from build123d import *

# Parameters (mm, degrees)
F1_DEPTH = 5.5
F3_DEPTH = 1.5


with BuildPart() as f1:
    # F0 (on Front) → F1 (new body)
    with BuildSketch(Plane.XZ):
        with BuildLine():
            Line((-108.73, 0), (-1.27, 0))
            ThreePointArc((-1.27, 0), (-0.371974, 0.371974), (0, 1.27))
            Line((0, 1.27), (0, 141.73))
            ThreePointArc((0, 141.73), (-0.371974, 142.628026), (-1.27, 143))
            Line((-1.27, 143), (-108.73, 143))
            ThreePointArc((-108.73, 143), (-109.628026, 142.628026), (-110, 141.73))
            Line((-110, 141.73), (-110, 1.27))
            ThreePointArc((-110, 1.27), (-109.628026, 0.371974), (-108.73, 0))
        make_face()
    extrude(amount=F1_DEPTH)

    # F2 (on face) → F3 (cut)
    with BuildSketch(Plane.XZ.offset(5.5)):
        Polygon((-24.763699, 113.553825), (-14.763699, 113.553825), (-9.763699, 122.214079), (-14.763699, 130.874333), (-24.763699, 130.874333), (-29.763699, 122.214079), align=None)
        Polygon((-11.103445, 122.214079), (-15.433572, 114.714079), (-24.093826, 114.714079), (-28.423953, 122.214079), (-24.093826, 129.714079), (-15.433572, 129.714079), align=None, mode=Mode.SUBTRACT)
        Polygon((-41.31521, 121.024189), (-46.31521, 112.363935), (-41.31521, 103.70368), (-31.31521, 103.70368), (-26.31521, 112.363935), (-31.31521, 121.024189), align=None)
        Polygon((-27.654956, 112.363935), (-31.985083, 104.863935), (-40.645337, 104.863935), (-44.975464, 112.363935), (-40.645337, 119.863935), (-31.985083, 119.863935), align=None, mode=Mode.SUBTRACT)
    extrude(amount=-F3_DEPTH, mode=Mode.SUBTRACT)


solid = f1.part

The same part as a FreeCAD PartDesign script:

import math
import FreeCAD as App
import Part
import Sketcher
from FreeCAD import Vector
Q = App.Units.Quantity


def add_polygon(sketch, points):
    """Adds a closed chain of lines whose ends are joined by coincident constraints."""
    first, n = sketch.GeometryCount, len(points)
    for a, b in zip(points, points[1:] + points[:1]):
        sketch.addGeometry(Part.LineSegment(App.Vector(*a, 0), App.Vector(*b, 0)), False)
    for i in range(n):
        sketch.addConstraint(Sketcher.Constraint("Coincident", first + i, 2, first + (i + 1) % n, 1))

doc = App.newDocument("Part")
body = doc.addObject("PartDesign::Body", "Body")

# Sketch on XZ plane
sketch1 = body.newObject("Sketcher::SketchObject", "Sketch")
sketch1.AttachmentSupport = (doc.getObject("XZ_Plane"), [""])
sketch1.MapMode = "FlatFace"
sketch1.addGeometry([
    Part.LineSegment(Vector(-108.7, 0, 0), Vector(-1.3, 0, 0)),  # 0
    Part.ArcOfCircle(Part.Circle(Vector(-1.3, 1.3, 0), Vector(0, 0, 1), 1.3), math.radians(-90), math.radians(0)),  # 1
    Part.LineSegment(Vector(0, 1.3, 0), Vector(0, 141.7, 0)),  # 2
    Part.ArcOfCircle(Part.Circle(Vector(-1.3, 141.7, 0), Vector(0, 0, 1), 1.3), math.radians(0), math.radians(90)),  # 3
    Part.LineSegment(Vector(-1.3, 143, 0), Vector(-108.7, 143, 0)),  # 4
    Part.ArcOfCircle(Part.Circle(Vector(-108.7, 141.7, 0), Vector(0, 0, 1), 1.3), math.radians(90), math.radians(180)),  # 5
    Part.LineSegment(Vector(-110, 141.7, 0), Vector(-110, 1.3, 0)),  # 6
    Part.ArcOfCircle(Part.Circle(Vector(-108.7, 1.3, 0), Vector(0, 0, 1), 1.3), math.radians(180), math.radians(270)),  # 7
], False)
sketch1.addConstraint([
    Sketcher.Constraint("Tangent", 0, 2, 1, 1),
    Sketcher.Constraint("Tangent", 1, 2, 2, 1),
    Sketcher.Constraint("Tangent", 2, 2, 3, 1),
    Sketcher.Constraint("Tangent", 3, 2, 4, 1),
    Sketcher.Constraint("Tangent", 4, 2, 5, 1),
    Sketcher.Constraint("Tangent", 5, 2, 6, 1),
    Sketcher.Constraint("Tangent", 6, 2, 7, 1),
    Sketcher.Constraint("Tangent", 7, 2, 0, 1),
    Sketcher.Constraint("Horizontal", 0),
    Sketcher.Constraint("Vertical", 2),
    Sketcher.Constraint("Horizontal", 4),
    Sketcher.Constraint("Vertical", 6),
    Sketcher.Constraint("Equal", 1, 3),
    Sketcher.Constraint("Equal", 3, 5),
    Sketcher.Constraint("Equal", 5, 7),
    Sketcher.Constraint("PointOnObject", 0, 2, -1),
    Sketcher.Constraint("PointOnObject", 1, 2, -2),
    Sketcher.Constraint("Radius", 1, Q("1.269999 mm")),
    Sketcher.Constraint("DistanceY", -1, 1, 3, 2, Q("143 mm")),
    Sketcher.Constraint("DistanceX", 5, 2, -1, 1, Q("110 mm")),
])
pad1 = body.newObject("PartDesign::Pad", "Pad")
pad1.Profile = sketch1
pad1.Length = 5.5

# Sketch on XZ plane
sketch2 = body.newObject("Sketcher::SketchObject", "Sketch001")
sketch2.AttachmentSupport = (doc.getObject("XZ_Plane"), [""])
sketch2.MapMode = "FlatFace"
sketch2.AttachmentOffset = App.Placement(Vector(0, 0, 5.5), App.Rotation())
add_polygon(sketch2, [(-25, 114), (-15, 114), (-10, 122), (-15, 131), (-25, 131), (-30, 122)])  # lines 0-5
add_polygon(sketch2, [(-15, 130), (-11, 122), (-15, 115), (-24, 115), (-28, 122), (-24, 130)])  # lines 6-11
add_polygon(sketch2, [(-41, 121), (-46, 112), (-41, 104), (-31, 104), (-26, 112), (-31, 121)])  # lines 12-17
add_polygon(sketch2, [(-32, 120), (-28, 112), (-32, 105), (-41, 105), (-45, 112), (-41, 120)])  # lines 18-23
sketch2.addConstraint([
    Sketcher.Constraint("Horizontal", 0),
    Sketcher.Constraint("Horizontal", 3),
    Sketcher.Constraint("Horizontal", 8),
    Sketcher.Constraint("Horizontal", 11),
    Sketcher.Constraint("Horizontal", 14),
    Sketcher.Constraint("Horizontal", 17),
    Sketcher.Constraint("Horizontal", 20),
    Sketcher.Constraint("Horizontal", 23),
    Sketcher.Constraint("Parallel", 1, 4),
    Sketcher.Constraint("Parallel", 2, 5),
    Sketcher.Constraint("Parallel", 5, 6),
    Sketcher.Constraint("Parallel", 4, 7),
    Sketcher.Constraint("Parallel", 6, 9),
    Sketcher.Constraint("Parallel", 7, 10),
    Sketcher.Constraint("Parallel", 10, 12),
    Sketcher.Constraint("Parallel", 9, 13),
    Sketcher.Constraint("Parallel", 12, 15),
    Sketcher.Constraint("Parallel", 13, 16),
    Sketcher.Constraint("Parallel", 16, 18),
    Sketcher.Constraint("Parallel", 15, 19),
    Sketcher.Constraint("Parallel", 18, 21),
    Sketcher.Constraint("Parallel", 19, 22),
    Sketcher.Constraint("Horizontal", 1, 2, 4, 2),
    Sketcher.Constraint("Horizontal", 4, 2, 6, 2),
    Sketcher.Constraint("Horizontal", 6, 2, 9, 2),
    Sketcher.Constraint("Horizontal", 12, 2, 15, 2),
    Sketcher.Constraint("Horizontal", 15, 2, 18, 2),
    Sketcher.Constraint("Horizontal", 18, 2, 21, 2),
    Sketcher.Constraint("Vertical", 0, 2, 2, 2),
    Sketcher.Constraint("Vertical", 3, 2, 5, 2),
    Sketcher.Constraint("Vertical", 8, 2, 10, 2),
    Sketcher.Constraint("Vertical", 14, 2, 16, 2),
    Sketcher.Constraint("Vertical", 20, 2, 22, 2),
    Sketcher.Constraint("Equal", 3, 14),
    Sketcher.Constraint("Equal", 11, 20),
    Sketcher.Constraint("Equal", 5, 12),
    Sketcher.Constraint("Equal", 10, 18),
    Sketcher.Constraint("DistanceX", 0, 1, 0, 2, Q("10 mm")),
    Sketcher.Constraint("Angle", 1, Q("60 deg")),
    Sketcher.Constraint("Distance", 1, Q("10 mm")),
    Sketcher.Constraint("DistanceY", 7, 2, 6, 2, Q("7.5 mm")),
    Sketcher.Constraint("DistanceX", 0, 2, -1, 1, Q("14.763699 mm")),
    Sketcher.Constraint("DistanceY", 13, 2, 8, 2, Q("11.010399 mm")),
    Sketcher.Constraint("DistanceX", 8, 2, 8, 1, Q("8.660254 mm")),
    Sketcher.Constraint("DistanceY", -1, 1, 1, 2, Q("122.214079 mm")),
    Sketcher.Constraint("DistanceX", 12, 2, -1, 1, Q("46.31521 mm")),
    Sketcher.Constraint("DistanceX", 18, 2, 8, 2, Q("3.56113 mm")),
    Sketcher.Constraint("DistanceX", 6, 2, -1, 1, Q("11.103445 mm")),
])
pocket1 = body.newObject("PartDesign::Pocket", "Pocket")
pocket1.Profile = sketch2
pocket1.Length = 1.5

doc.recompute()
